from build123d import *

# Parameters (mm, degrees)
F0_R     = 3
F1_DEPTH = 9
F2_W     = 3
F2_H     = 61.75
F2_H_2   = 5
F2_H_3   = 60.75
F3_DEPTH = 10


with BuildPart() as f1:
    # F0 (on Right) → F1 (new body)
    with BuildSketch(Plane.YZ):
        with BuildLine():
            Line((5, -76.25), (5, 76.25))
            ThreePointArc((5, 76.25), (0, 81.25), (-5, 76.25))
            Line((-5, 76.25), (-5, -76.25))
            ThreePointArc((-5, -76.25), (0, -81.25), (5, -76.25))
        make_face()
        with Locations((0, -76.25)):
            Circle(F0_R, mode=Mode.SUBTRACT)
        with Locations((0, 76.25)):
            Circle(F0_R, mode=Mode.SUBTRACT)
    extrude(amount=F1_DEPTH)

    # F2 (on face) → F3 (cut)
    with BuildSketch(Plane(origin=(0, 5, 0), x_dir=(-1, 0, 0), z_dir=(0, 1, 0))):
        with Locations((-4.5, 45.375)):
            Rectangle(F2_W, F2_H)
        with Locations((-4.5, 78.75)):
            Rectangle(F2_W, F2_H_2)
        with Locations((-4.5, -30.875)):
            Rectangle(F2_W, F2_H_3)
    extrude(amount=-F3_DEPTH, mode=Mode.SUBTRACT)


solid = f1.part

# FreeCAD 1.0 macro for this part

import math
import FreeCAD as App
import Part
import Sketcher

V = App.Vector


def add_polygon(sketch, points):
    """Adds a closed chain of lines whose ends are joined by coincident constraints."""
    first, n = sketch.GeometryCount, len(points)
    for a, b in zip(points, points[1:] + points[:1]):
        sketch.addGeometry(Part.LineSegment(App.Vector(*a, 0), App.Vector(*b, 0)), False)
    for i in range(n):
        sketch.addConstraint(Sketcher.Constraint("Coincident", first + i, 2, first + (i + 1) % n, 1))

doc = App.newDocument("Part")
params = doc.addObject("Spreadsheet::Sheet", "Params")
for row, (alias, value) in enumerate([
    ("sketch1_diameter", "6 mm"),
    ("sketch1_radius", "5 mm"),
    ("sketch1_height", "152.5 mm"),
    ("pad1_length", "9 mm"),
    ("sketch2_width", "3 mm"),
    ("sketch2_height", "66.75 mm"),
    ("sketch2_height2", "60.75 mm"),
    ("pocket1_length", "10 mm"),
], start=1):
    params.set(f"A{row}", alias)
    params.set(f"B{row}", "=" + value)
    params.setAlias(f"B{row}", alias)

body = doc.addObject("PartDesign::Body", "Body")

# Sketch on YZ plane
sketch1 = body.newObject("Sketcher::SketchObject", "Sketch")
sketch1.AttachmentSupport = (doc.getObject("YZ_Plane"), [""])
sketch1.MapMode = "FlatFace"
sketch1.addGeometry([
    Part.LineSegment(V(5, -76.2, 0), V(5, 76.2, 0)),  # 0
    Part.ArcOfCircle(Part.Circle(V(0, 76.2, 0), V(0, 0, 1), 5), math.radians(0), math.radians(180)),  # 1
    Part.LineSegment(V(-5, 76.2, 0), V(-5, -76.2, 0)),  # 2
    Part.ArcOfCircle(Part.Circle(V(0, -76.2, 0), V(0, 0, 1), 5), math.radians(180), math.radians(360)),  # 3
    Part.Circle(V(0, -76.2, 0), V(0, 0, 1), 3),  # 4
    Part.Circle(V(0, 76.2, 0), V(0, 0, 1), 3),  # 5
], False)
sketch1.addConstraint([
    Sketcher.Constraint("Tangent", 0, 2, 1, 1),
    Sketcher.Constraint("Tangent", 1, 2, 2, 1),
    Sketcher.Constraint("Tangent", 2, 2, 3, 1),
    Sketcher.Constraint("Tangent", 3, 2, 0, 1),
    Sketcher.Constraint("Vertical", 0),
    Sketcher.Constraint("Vertical", 2),
    Sketcher.Constraint("Coincident", 4, 3, 3, 3),
    Sketcher.Constraint("Coincident", 5, 3, 1, 3),
    Sketcher.Constraint("Equal", 4, 5),
    Sketcher.Constraint("Symmetric", 1, 3, 3, 3, -1, 1),
    Sketcher.Constraint("Diameter", 4, 6.0),
    Sketcher.Constraint("Radius", 1, 5.0),
    Sketcher.Constraint("DistanceY", 0, 1, 0, 2, 152.5),
])
sketch1.setExpression("Constraints[10]", "Params.sketch1_diameter")
sketch1.setExpression("Constraints[11]", "Params.sketch1_radius")
sketch1.setExpression("Constraints[12]", "Params.sketch1_height")
pad1 = body.newObject("PartDesign::Pad", "Pad")
pad1.Profile = sketch1
pad1.setExpression("Length", "Params.pad1_length")

# Sketch on XZ plane
sketch2 = body.newObject("Sketcher::SketchObject", "Sketch001")
sketch2.AttachmentSupport = (doc.getObject("XZ_Plane"), [""])
sketch2.MapMode = "FlatFace"
sketch2.AttachmentOffset = App.Placement(V(0, 0, -5), App.Rotation())
add_polygon(sketch2, [(6, 14.5), (3, 14.5), (3, 81.2), (6, 81.2)])  # lines 0-3
add_polygon(sketch2, [(6, -0.5), (6, -61.2), (3, -61.2), (3, -0.5)])  # lines 4-7
sketch2.addConstraint([
    Sketcher.Constraint("Horizontal", 0),
    Sketcher.Constraint("Vertical", 1),
    Sketcher.Constraint("Horizontal", 2),
    Sketcher.Constraint("Vertical", 3),
    Sketcher.Constraint("Vertical", 4),
    Sketcher.Constraint("Horizontal", 5),
    Sketcher.Constraint("Vertical", 6),
    Sketcher.Constraint("Horizontal", 7),
    Sketcher.Constraint("Vertical", 3, 2, 4, 2),
    Sketcher.Constraint("Vertical", 1, 2, 5, 2),
    Sketcher.Constraint("DistanceX", 0, 2, 0, 1, 3.0),
    Sketcher.Constraint("DistanceX", -1, 1, 0, 2, 3.0),
    Sketcher.Constraint("DistanceY", 6, 2, 0, 2, 15.0),
    Sketcher.Constraint("DistanceY", 1, 1, 1, 2, 66.75),
    Sketcher.Constraint("DistanceY", 4, 2, 4, 1, 60.75),
    Sketcher.Constraint("DistanceY", -1, 1, 0, 2, 14.5),
])
sketch2.setExpression("Constraints[18]", "Params.sketch2_width")
sketch2.setExpression("Constraints[21]", "Params.sketch2_height")
sketch2.setExpression("Constraints[22]", "Params.sketch2_height2")
pocket1 = body.newObject("PartDesign::Pocket", "Pocket")
pocket1.Profile = sketch2
pocket1.setExpression("Length", "Params.pocket1_length")
pocket1.Reversed = True

doc.recompute()
